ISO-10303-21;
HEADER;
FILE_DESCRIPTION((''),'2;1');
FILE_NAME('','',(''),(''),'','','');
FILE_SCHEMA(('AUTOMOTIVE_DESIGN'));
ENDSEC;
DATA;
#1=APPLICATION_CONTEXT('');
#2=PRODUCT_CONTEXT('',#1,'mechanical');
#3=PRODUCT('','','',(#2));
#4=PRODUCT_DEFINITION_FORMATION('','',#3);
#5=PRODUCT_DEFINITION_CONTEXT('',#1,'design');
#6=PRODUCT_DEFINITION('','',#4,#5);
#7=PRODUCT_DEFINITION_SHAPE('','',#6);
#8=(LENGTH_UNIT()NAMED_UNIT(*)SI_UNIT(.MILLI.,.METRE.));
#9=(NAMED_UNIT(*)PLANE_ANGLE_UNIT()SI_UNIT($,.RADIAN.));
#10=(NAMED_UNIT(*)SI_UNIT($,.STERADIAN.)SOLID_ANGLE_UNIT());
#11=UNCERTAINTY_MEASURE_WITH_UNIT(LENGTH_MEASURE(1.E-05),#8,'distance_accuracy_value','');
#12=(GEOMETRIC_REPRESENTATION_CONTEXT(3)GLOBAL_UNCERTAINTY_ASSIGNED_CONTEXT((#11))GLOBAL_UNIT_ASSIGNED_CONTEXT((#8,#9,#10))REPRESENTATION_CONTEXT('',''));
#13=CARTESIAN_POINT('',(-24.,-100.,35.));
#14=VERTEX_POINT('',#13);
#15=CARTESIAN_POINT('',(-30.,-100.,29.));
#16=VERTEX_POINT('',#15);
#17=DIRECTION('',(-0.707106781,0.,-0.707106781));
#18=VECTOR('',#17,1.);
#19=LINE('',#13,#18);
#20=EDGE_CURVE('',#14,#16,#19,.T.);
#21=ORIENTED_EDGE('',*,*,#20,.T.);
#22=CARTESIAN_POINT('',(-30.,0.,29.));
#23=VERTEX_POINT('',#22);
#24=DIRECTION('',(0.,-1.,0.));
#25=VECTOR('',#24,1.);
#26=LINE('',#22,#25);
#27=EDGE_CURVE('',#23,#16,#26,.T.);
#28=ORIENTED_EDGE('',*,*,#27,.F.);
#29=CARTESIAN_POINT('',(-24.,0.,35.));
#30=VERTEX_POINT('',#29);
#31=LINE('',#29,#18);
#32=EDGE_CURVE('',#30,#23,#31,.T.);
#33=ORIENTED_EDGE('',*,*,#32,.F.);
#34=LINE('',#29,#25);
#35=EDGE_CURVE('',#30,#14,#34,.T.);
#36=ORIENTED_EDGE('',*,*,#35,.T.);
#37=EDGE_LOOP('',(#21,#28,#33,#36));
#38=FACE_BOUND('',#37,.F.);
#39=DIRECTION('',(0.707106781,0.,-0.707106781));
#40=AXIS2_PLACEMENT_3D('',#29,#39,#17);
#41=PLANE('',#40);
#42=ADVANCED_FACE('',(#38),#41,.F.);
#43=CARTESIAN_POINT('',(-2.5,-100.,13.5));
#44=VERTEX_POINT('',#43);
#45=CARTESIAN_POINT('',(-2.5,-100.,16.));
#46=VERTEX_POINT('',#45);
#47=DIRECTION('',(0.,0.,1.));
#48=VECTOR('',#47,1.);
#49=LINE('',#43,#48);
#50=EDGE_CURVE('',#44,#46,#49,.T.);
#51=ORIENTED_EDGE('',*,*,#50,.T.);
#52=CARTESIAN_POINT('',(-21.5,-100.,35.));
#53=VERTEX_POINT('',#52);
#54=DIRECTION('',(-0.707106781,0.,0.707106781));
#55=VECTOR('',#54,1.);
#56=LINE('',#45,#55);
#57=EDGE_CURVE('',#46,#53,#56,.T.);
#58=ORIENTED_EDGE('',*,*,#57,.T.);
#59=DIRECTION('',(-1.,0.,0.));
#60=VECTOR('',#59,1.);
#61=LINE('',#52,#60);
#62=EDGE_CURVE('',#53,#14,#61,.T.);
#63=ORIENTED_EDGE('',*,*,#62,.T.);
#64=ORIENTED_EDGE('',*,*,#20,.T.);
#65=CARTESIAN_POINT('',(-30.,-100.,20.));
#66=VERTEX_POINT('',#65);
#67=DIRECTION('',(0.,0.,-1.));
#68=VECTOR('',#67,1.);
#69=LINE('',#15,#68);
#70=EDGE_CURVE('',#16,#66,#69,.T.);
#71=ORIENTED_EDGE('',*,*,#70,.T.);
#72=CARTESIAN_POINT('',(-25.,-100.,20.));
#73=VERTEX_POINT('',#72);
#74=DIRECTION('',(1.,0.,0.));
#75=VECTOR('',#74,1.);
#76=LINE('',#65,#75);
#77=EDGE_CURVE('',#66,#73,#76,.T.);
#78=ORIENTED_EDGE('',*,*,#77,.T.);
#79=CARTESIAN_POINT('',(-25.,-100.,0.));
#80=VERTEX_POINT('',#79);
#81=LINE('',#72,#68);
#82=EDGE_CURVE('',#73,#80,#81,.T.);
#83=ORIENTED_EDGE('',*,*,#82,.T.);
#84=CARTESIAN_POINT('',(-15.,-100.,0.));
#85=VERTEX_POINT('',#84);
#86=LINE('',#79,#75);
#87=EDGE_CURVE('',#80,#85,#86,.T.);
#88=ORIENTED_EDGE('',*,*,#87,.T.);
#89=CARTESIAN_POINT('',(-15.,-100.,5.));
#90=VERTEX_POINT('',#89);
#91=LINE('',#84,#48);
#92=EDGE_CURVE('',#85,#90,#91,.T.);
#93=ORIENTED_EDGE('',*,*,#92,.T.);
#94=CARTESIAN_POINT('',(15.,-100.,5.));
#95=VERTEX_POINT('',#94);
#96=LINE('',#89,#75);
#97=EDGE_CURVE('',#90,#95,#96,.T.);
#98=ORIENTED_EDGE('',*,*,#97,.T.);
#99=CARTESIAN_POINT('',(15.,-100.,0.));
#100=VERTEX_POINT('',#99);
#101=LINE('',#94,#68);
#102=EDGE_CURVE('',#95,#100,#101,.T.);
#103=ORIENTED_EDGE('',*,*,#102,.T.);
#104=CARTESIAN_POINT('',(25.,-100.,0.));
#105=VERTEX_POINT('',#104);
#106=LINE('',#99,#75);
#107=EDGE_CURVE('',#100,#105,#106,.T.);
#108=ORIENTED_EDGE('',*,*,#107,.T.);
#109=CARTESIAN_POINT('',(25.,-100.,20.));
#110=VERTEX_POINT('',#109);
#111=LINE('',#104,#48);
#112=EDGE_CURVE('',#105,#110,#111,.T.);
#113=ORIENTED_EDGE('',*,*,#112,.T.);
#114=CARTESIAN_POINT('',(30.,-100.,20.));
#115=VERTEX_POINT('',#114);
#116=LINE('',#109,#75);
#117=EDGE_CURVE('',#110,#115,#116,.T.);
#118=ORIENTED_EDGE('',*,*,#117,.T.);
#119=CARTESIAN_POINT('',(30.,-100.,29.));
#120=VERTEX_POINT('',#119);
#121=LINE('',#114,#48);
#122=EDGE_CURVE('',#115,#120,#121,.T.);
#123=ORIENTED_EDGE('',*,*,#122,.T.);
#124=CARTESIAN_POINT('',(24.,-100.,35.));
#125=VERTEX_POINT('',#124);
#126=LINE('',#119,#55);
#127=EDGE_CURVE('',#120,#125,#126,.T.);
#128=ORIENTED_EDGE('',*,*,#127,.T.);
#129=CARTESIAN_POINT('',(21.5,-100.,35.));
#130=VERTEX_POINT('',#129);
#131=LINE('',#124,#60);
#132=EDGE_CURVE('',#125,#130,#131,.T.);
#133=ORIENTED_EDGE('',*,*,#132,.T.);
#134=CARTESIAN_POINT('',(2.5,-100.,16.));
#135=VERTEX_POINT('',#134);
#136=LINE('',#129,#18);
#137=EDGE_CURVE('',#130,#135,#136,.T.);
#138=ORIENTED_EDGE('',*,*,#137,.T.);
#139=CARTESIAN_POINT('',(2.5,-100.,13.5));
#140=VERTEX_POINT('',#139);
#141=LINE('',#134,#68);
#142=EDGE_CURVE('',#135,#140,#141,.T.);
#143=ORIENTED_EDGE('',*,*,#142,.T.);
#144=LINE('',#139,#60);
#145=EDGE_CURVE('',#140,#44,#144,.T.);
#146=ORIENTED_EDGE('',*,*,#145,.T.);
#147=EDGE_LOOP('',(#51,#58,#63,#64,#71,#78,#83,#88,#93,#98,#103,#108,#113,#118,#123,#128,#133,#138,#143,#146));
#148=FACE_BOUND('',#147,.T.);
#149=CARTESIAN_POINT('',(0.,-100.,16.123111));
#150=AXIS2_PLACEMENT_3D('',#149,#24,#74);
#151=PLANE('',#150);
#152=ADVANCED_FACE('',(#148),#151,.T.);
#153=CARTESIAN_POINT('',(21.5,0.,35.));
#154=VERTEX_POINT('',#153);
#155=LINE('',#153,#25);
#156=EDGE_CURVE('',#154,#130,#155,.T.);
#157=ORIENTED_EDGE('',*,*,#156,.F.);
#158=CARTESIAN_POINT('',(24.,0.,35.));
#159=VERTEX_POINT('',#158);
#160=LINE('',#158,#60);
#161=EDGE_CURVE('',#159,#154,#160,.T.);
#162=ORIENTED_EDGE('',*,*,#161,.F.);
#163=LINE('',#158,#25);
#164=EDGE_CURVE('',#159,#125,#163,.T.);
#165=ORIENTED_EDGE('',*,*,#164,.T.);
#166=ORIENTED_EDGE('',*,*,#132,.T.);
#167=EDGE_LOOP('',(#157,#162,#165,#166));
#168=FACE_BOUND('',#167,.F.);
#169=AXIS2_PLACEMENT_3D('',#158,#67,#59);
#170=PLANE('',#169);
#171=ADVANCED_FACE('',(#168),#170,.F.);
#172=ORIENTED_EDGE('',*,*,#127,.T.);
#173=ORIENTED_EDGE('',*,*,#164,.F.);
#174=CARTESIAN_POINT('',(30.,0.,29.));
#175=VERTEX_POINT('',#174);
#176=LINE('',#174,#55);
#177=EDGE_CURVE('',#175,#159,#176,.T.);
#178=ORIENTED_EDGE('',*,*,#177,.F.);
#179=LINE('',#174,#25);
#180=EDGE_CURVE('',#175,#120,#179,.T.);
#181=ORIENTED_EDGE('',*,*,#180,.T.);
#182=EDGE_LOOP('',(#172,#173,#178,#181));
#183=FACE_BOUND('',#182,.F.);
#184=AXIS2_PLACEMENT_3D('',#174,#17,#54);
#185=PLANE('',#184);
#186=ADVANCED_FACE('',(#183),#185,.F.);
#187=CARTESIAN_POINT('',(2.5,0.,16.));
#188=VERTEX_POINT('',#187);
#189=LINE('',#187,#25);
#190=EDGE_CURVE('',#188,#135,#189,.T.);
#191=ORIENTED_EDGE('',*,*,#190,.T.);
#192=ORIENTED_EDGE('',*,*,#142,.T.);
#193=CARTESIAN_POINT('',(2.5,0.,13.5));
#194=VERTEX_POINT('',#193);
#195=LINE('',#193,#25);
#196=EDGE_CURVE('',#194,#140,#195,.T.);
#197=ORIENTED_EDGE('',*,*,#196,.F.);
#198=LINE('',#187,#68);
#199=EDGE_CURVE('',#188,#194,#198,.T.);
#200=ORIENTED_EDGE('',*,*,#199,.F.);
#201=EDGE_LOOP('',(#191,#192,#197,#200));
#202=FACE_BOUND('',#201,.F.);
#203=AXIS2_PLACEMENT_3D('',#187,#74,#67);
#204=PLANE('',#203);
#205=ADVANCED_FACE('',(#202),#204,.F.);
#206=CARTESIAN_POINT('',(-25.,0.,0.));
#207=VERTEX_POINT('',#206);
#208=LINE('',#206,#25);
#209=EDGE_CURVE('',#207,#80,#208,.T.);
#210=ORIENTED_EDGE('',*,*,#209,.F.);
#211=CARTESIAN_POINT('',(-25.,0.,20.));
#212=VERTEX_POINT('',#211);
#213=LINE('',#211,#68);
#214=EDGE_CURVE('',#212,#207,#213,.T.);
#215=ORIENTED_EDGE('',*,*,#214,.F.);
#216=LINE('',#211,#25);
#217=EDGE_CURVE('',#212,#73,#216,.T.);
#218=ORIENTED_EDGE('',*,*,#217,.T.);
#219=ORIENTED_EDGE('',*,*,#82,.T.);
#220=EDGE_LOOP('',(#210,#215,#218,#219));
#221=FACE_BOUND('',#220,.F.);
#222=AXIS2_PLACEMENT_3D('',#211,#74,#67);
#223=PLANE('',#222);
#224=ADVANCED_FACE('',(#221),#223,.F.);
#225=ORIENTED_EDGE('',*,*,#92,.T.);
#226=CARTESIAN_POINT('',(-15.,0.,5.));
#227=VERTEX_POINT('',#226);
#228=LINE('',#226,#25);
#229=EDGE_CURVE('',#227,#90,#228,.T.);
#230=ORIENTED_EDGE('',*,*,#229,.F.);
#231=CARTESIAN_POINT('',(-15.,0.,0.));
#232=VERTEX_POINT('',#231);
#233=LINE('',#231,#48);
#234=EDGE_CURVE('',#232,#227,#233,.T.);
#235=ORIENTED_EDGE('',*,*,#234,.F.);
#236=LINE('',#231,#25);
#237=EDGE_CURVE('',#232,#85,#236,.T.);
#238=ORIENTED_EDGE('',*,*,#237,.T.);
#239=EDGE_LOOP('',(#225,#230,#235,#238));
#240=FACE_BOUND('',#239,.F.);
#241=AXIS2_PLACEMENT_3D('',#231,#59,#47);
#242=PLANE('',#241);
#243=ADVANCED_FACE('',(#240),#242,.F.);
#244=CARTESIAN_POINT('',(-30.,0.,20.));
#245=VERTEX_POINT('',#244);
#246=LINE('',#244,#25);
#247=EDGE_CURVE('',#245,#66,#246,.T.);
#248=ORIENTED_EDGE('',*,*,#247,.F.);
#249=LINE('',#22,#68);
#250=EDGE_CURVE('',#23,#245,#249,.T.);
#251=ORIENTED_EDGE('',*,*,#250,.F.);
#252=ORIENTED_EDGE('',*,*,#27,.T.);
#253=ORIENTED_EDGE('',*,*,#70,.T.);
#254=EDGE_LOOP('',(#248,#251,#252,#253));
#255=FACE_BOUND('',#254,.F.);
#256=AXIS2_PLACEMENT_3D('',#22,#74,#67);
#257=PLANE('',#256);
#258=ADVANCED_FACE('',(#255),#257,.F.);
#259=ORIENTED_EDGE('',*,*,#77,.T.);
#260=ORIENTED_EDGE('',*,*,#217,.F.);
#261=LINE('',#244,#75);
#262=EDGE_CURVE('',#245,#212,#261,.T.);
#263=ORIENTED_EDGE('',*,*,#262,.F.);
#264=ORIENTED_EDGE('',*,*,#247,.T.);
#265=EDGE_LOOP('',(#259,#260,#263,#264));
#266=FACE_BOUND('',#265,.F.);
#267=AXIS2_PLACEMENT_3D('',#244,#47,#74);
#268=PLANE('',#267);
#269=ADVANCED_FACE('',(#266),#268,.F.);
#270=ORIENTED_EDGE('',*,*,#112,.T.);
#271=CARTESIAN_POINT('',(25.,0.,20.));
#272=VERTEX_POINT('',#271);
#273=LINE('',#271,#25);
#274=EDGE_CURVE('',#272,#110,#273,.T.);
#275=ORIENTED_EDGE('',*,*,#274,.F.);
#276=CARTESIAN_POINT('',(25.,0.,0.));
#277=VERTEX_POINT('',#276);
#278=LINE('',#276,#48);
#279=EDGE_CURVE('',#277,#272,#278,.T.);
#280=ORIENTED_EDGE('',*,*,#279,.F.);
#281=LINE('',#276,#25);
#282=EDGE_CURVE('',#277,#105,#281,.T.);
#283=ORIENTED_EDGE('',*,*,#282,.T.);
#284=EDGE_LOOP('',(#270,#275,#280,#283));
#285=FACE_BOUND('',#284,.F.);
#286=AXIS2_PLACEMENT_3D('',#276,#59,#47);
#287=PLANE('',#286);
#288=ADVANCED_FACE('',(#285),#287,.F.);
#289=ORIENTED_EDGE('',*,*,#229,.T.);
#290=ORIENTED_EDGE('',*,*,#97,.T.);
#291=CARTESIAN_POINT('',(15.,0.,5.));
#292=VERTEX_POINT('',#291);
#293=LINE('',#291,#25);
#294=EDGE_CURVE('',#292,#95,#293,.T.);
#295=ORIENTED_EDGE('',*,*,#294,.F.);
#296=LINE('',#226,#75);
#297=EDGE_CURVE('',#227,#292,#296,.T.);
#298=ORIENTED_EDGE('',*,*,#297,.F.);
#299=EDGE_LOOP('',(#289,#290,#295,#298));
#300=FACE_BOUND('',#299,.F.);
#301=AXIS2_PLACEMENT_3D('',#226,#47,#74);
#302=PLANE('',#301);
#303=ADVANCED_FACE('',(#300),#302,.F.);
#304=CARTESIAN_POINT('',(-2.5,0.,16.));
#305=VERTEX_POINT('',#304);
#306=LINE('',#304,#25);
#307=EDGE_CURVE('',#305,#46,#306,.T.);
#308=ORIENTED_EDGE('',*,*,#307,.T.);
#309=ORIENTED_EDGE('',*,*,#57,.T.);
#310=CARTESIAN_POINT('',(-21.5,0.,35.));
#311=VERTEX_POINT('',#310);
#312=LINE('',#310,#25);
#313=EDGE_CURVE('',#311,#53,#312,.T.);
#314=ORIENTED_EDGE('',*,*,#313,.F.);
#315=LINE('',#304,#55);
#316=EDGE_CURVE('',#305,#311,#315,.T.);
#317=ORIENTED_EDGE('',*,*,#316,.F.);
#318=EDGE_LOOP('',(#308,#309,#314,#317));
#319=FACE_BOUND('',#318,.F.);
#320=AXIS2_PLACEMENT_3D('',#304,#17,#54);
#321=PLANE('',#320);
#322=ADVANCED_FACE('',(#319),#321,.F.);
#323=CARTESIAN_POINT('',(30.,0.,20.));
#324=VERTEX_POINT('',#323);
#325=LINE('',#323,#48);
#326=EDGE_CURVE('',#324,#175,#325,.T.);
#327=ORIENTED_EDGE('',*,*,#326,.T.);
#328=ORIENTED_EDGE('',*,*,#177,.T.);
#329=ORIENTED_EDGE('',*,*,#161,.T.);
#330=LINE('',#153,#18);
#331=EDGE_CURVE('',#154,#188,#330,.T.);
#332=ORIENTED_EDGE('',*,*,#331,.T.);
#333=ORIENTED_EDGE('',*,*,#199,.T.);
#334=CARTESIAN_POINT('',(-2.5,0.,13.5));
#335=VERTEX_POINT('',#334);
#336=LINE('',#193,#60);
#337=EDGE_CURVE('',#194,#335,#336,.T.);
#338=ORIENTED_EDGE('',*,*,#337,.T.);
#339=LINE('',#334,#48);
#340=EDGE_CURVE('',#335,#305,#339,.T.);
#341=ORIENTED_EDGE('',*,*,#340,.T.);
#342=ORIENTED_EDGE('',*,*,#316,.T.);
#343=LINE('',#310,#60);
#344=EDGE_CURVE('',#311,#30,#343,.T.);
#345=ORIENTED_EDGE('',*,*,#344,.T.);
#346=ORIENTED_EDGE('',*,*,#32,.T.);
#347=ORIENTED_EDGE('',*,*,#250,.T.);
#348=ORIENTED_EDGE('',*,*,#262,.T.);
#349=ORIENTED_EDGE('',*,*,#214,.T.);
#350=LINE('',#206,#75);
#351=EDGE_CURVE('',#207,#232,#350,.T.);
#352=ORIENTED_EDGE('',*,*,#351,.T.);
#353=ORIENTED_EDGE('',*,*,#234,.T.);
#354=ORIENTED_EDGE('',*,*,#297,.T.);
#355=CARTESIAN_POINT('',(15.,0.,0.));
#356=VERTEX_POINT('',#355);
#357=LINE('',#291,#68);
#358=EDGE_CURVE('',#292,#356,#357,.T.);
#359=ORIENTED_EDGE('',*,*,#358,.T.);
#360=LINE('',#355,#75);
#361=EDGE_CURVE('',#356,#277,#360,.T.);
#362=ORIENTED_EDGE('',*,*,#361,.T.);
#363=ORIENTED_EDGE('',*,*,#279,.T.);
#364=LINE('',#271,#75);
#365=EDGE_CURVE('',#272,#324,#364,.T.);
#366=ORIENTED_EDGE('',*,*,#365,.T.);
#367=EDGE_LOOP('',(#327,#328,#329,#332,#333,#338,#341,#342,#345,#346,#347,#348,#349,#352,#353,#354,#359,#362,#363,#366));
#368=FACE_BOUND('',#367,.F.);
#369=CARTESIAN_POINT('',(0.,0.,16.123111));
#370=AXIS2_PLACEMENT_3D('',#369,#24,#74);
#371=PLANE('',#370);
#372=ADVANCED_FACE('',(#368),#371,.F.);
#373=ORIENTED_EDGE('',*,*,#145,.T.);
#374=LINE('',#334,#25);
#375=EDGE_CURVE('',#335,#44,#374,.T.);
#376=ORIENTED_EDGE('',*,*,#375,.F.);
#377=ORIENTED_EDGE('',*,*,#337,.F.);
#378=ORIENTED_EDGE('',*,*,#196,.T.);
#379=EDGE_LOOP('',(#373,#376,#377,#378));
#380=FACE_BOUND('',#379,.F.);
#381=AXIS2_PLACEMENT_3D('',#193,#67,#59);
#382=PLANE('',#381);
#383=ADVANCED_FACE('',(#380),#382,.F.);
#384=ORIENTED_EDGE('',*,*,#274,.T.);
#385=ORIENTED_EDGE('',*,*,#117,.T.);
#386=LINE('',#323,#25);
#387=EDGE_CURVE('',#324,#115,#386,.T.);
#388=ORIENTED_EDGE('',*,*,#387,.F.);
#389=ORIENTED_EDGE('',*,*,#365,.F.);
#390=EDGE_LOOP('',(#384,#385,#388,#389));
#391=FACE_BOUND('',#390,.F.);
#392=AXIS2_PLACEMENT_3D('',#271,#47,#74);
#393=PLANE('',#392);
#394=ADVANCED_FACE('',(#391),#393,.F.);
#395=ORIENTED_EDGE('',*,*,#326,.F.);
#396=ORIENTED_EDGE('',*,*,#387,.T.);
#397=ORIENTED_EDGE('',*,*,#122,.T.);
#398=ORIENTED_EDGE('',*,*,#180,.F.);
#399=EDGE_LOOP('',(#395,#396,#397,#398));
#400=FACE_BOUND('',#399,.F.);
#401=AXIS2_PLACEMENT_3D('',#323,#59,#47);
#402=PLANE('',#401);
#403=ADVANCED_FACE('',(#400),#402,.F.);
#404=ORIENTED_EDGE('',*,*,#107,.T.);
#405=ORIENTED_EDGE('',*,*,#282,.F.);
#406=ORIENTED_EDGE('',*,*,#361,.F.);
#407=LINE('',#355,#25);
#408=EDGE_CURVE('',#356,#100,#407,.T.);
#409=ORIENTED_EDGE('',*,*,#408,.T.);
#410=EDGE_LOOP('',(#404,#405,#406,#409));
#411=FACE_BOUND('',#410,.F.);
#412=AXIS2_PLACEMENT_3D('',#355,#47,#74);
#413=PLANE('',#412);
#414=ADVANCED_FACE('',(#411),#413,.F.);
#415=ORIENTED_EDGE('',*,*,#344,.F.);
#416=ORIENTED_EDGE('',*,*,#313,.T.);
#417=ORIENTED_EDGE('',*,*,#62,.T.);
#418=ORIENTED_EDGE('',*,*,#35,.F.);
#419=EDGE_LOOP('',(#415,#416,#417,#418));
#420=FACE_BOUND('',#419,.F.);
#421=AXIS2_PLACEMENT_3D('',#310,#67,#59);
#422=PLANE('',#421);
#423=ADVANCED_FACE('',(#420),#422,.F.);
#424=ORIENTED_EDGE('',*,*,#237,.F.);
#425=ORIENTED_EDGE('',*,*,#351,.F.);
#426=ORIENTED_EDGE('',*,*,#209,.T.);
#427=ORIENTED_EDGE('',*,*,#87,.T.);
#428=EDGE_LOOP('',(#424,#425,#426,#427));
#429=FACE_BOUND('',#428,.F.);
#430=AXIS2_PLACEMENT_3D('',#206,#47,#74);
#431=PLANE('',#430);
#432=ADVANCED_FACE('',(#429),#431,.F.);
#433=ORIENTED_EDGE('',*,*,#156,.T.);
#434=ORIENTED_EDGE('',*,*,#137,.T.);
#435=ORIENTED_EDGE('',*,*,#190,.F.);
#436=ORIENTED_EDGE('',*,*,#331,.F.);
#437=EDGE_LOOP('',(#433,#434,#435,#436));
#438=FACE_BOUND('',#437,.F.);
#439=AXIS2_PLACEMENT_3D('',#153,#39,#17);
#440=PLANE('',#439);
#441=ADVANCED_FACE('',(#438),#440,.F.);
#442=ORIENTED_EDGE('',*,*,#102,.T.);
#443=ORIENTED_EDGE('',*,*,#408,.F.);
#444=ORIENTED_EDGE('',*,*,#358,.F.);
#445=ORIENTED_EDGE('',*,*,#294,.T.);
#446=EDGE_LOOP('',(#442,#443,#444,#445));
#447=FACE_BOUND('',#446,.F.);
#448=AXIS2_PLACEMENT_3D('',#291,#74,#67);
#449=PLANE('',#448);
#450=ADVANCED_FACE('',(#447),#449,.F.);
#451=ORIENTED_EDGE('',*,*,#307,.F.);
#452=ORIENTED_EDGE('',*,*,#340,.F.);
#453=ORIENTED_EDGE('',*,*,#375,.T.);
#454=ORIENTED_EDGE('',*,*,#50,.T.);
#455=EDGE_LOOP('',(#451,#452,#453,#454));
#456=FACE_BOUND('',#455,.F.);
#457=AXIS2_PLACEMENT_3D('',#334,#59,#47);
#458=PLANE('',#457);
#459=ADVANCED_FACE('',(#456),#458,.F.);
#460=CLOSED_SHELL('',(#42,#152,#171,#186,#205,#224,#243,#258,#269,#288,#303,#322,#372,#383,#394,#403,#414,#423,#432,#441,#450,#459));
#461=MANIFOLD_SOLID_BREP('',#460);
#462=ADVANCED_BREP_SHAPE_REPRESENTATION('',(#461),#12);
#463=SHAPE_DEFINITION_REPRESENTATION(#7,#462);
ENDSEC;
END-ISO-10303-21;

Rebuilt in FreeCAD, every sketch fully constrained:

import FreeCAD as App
import Part
import Sketcher
from FreeCAD import Vector
Q = App.Units.Quantity


def add_polygon(sketch, points):
    """Adds a closed chain of lines whose ends are joined by coincident constraints."""
    first, n = sketch.GeometryCount, len(points)
    for a, b in zip(points, points[1:] + points[:1]):
        sketch.addGeometry(Part.LineSegment(App.Vector(*a, 0), App.Vector(*b, 0)), False)
    for i in range(n):
        sketch.addConstraint(Sketcher.Constraint("Coincident", first + i, 2, first + (i + 1) % n, 1))

doc = App.newDocument("Part")
params = doc.addObject("Spreadsheet::Sheet", "Params")
for row, (alias, value) in enumerate([
    ("sketch1_width", "5 mm"),
    ("sketch1_width2", "10 mm"),
    ("sketch1_width3", "30 mm"),
    ("sketch1_height", "9 mm"),
    ("sketch1_height2", "20 mm"),
    ("pad1_length", "100 mm"),
], start=1):
    params.set(f"A{row}", alias)
    params.set(f"B{row}", "=" + value)
    params.setAlias(f"B{row}", alias)

body = doc.addObject("PartDesign::Body", "Body")

# Sketch on XZ plane
sketch1 = doc.addObject("Sketcher::SketchObject", "Sketch")
body.addObject(sketch1)
sketch1.AttachmentSupport = (doc.XZ_Plane, [""])
sketch1.MapMode = "FlatFace"
add_polygon(sketch1, [(2.5, 13.5), (-2.5, 13.5), (-2.5, 16), (-21.5, 35), (-24, 35), (-30, 29), (-30, 20), (-25, 20), (-25, 0), (-15, 0), (-15, 5), (15, 5), (15, 0), (25, 0), (25, 20), (30, 20), (30, 29), (24, 35), (21.5, 35), (2.5, 16)])  # lines 0-19
sketch1.addConstraint([
    Sketcher.Constraint("Horizontal", 0),
    Sketcher.Constraint("Vertical", 1),
    Sketcher.Constraint("Horizontal", 3),
    Sketcher.Constraint("Vertical", 5),
    Sketcher.Constraint("Horizontal", 6),
    Sketcher.Constraint("Vertical", 7),
    Sketcher.Constraint("Horizontal", 8),
    Sketcher.Constraint("Vertical", 9),
    Sketcher.Constraint("Horizontal", 10),
    Sketcher.Constraint("Vertical", 11),
    Sketcher.Constraint("Horizontal", 12),
    Sketcher.Constraint("Vertical", 13),
    Sketcher.Constraint("Horizontal", 14),
    Sketcher.Constraint("Vertical", 15),
    Sketcher.Constraint("Horizontal", 17),
    Sketcher.Constraint("Vertical", 19),
    Sketcher.Constraint("Symmetric", 8, 2, 11, 2, -1, 1),
    Sketcher.Constraint("Symmetric", 7, 2, 12, 2, -2),
    Sketcher.Constraint("Symmetric", 5, 2, 14, 2, -2),
    Sketcher.Constraint("Symmetric", 3, 2, 16, 2, -2),
    Sketcher.Constraint("Symmetric", 1, 2, 18, 2, -2),
    Sketcher.Constraint("Perpendicular", 2, 4),
    Sketcher.Constraint("Perpendicular", 4, 16),
    Sketcher.Constraint("Perpendicular", 16, 18),
    Sketcher.Constraint("Horizontal", 4, 2, 15, 2),
    Sketcher.Constraint("Equal", 0, 6),
    Sketcher.Constraint("Equal", 17, 1),
    Sketcher.Constraint("Equal", 14, 9),
    Sketcher.Constraint("DistanceX", 0, 2, 0, 1, Q("5 mm")),
    Sketcher.Constraint("DistanceX", 8, 1, 8, 2, Q("10 mm")),
    Sketcher.Constraint("DistanceX", 10, 1, 10, 2, Q("30 mm")),
    Sketcher.Constraint("DistanceY", 5, 2, 5, 1, Q("9 mm")),
    Sketcher.Constraint("DistanceY", 7, 2, 7, 1, Q("20 mm")),
    Sketcher.Constraint("DistanceX", 3, 2, 3, 1, Q("2.5 mm")),
    Sketcher.Constraint("DistanceY", -1, 1, 1, 2, Q("16 mm")),
])
sketch1.setExpression("Constraints[48]", "Params.sketch1_width")
sketch1.setExpression("Constraints[49]", "Params.sketch1_width2")
sketch1.setExpression("Constraints[50]", "Params.sketch1_width3")
sketch1.setExpression("Constraints[51]", "Params.sketch1_height")
sketch1.setExpression("Constraints[52]", "Params.sketch1_height2")
pad1 = doc.addObject("PartDesign::Pad", "Pad")
body.addObject(pad1)
pad1.Profile = sketch1
pad1.setExpression("Length", "Params.pad1_length")

doc.recompute()
